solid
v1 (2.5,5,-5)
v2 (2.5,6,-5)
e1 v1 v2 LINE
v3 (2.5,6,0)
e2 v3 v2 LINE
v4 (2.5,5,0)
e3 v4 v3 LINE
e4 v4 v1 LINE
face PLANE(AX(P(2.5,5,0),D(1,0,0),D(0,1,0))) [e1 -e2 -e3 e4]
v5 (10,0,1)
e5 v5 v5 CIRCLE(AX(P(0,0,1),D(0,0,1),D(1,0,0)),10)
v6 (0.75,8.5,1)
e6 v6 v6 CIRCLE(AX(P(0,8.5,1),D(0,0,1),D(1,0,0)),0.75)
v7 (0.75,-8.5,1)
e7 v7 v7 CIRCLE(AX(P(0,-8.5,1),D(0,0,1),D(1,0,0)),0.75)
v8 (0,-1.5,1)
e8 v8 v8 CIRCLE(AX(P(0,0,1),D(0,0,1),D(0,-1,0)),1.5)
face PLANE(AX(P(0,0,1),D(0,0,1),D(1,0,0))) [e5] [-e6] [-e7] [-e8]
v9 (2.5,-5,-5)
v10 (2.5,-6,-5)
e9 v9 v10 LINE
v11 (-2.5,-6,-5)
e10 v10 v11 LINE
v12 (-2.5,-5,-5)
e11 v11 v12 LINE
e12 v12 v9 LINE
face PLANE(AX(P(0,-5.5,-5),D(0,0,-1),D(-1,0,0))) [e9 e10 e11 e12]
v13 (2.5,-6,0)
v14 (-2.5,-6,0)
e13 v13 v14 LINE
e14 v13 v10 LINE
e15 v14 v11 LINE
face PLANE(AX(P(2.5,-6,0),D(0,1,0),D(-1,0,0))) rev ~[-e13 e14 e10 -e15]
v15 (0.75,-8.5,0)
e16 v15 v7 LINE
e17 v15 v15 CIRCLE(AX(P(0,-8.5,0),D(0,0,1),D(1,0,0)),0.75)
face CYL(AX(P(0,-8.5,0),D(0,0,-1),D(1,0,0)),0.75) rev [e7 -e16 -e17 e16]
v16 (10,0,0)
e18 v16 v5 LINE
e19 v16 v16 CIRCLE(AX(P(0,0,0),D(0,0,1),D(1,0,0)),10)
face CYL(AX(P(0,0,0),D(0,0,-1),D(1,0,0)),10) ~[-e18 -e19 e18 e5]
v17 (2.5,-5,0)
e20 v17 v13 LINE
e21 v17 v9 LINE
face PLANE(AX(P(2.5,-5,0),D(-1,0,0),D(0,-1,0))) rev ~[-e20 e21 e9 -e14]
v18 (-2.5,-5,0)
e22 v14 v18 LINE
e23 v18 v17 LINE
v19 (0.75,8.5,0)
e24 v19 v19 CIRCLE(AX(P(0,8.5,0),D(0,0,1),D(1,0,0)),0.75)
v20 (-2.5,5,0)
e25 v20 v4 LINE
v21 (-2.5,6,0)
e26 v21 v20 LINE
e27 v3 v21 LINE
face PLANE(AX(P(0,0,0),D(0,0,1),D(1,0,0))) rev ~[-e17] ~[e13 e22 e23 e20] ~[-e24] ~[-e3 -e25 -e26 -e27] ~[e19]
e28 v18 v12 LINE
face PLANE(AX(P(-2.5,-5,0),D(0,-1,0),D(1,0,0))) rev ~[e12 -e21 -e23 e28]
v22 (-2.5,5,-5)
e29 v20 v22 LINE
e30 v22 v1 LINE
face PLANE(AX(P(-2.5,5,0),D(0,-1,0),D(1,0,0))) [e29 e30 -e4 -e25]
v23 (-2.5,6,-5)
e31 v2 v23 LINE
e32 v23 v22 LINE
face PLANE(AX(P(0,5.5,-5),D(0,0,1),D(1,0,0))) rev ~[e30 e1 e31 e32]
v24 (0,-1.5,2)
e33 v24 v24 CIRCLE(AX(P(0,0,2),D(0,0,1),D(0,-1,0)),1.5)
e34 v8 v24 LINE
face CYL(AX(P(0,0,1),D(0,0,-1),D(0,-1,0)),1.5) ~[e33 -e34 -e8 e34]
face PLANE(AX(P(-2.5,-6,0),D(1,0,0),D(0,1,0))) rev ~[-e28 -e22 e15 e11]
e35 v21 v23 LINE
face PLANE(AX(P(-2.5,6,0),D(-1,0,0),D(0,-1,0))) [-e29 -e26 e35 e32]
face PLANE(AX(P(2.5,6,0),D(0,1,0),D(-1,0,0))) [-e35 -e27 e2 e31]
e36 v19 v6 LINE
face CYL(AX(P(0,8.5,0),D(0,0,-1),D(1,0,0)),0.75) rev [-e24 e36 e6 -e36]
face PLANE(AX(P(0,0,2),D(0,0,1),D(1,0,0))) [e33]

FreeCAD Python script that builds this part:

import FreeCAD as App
import Part
import Sketcher
from FreeCAD import Vector

doc = App.newDocument("Part")
body = doc.addObject("PartDesign::Body", "Body")

sketch1 = body.newObject("Sketcher::SketchObject", "Sketch")
sketch1.AttachmentSupport = (doc.getObject("XY_Plane"), [""])
sketch1.MapMode = "FlatFace"
sketch1.addGeometry(Part.Circle(Vector(0, 0, 0), Vector(0, 0, 1), 10), False)
sketch1.addGeometry(Part.Circle(Vector(0, -8.5, 0), Vector(0, 0, 1), 0.8), False)
sketch1.addGeometry(Part.Circle(Vector(0, 8.5, 0), Vector(0, 0, 1), 0.8), False)
sketch1.addConstraint(Sketcher.Constraint("Coincident", 0, 3, -1, 1))
sketch1.addConstraint(Sketcher.Constraint("Equal", 1, 2))
sketch1.addConstraint(Sketcher.Constraint("Symmetric", 1, 3, 2, 3, -1, 1))
sketch1.addConstraint(Sketcher.Constraint("PointOnObject", 1, 3, -2))
sketch1.addConstraint(Sketcher.Constraint("Diameter", 0, 20.0))
sketch1.addConstraint(Sketcher.Constraint("Diameter", 1, 1.5))
sketch1.addConstraint(Sketcher.Constraint("DistanceY", 1, 3, 2, 3, 17.0))
pad1 = body.newObject("PartDesign::Pad", "Pad")
pad1.Profile = sketch1
pad1.Length = 1

sketch2 = body.newObject("Sketcher::SketchObject", "Sketch001")
sketch2.AttachmentSupport = (doc.getObject("XY_Plane"), [""])
sketch2.MapMode = "FlatFace"
sketch2.addGeometry(Part.LineSegment(Vector(-2.5, -6, 0), Vector(-2.5, -5, 0)), False)
sketch2.addGeometry(Part.LineSegment(Vector(-2.5, -5, 0), Vector(2.5, -5, 0)), False)
sketch2.addGeometry(Part.LineSegment(Vector(2.5, -5, 0), Vector(2.5, -6, 0)), False)
sketch2.addGeometry(Part.LineSegment(Vector(2.5, -6, 0), Vector(-2.5, -6, 0)), False)
sketch2.addGeometry(Part.LineSegment(Vector(2.5, 5, 0), Vector(-2.5, 5, 0)), False)
sketch2.addGeometry(Part.LineSegment(Vector(-2.5, 5, 0), Vector(-2.5, 6, 0)), False)
sketch2.addGeometry(Part.LineSegment(Vector(-2.5, 6, 0), Vector(2.5, 6, 0)), False)
sketch2.addGeometry(Part.LineSegment(Vector(2.5, 6, 0), Vector(2.5, 5, 0)), False)
sketch2.addConstraint(Sketcher.Constraint("Coincident", 0, 2, 1, 1))
sketch2.addConstraint(Sketcher.Constraint("Coincident", 1, 2, 2, 1))
sketch2.addConstraint(Sketcher.Constraint("Coincident", 2, 2, 3, 1))
sketch2.addConstraint(Sketcher.Constraint("Coincident", 3, 2, 0, 1))
sketch2.addConstraint(Sketcher.Constraint("Coincident", 4, 2, 5, 1))
sketch2.addConstraint(Sketcher.Constraint("Coincident", 5, 2, 6, 1))
sketch2.addConstraint(Sketcher.Constraint("Coincident", 6, 2, 7, 1))
sketch2.addConstraint(Sketcher.Constraint("Coincident", 7, 2, 4, 1))
sketch2.addConstraint(Sketcher.Constraint("Vertical", 0))
sketch2.addConstraint(Sketcher.Constraint("Horizontal", 1))
sketch2.addConstraint(Sketcher.Constraint("Vertical", 2))
sketch2.addConstraint(Sketcher.Constraint("Horizontal", 3))
sketch2.addConstraint(Sketcher.Constraint("Horizontal", 4))
sketch2.addConstraint(Sketcher.Constraint("Vertical", 5))
sketch2.addConstraint(Sketcher.Constraint("Horizontal", 6))
sketch2.addConstraint(Sketcher.Constraint("Vertical", 7))
sketch2.addConstraint(Sketcher.Constraint("Symmetric", 1, 2, 4, 2, -1, 1))
sketch2.addConstraint(Sketcher.Constraint("Symmetric", 3, 2, 6, 2, -1, 1))
sketch2.addConstraint(Sketcher.Constraint("Vertical", 3, 2, 4, 2))
sketch2.addConstraint(Sketcher.Constraint("DistanceX", 1, 1, 1, 2, 5.0))
sketch2.addConstraint(Sketcher.Constraint("DistanceY", 0, 1, 0, 2, 1.0))
sketch2.addConstraint(Sketcher.Constraint("DistanceY", 0, 2, -1, 1, 5.0))
pad2 = body.newObject("PartDesign::Pad", "Pad001")
pad2.Profile = sketch2
pad2.Length = 5
pad2.Reversed = True

sketch3 = body.newObject("Sketcher::SketchObject", "Sketch002")
sketch3.AttachmentSupport = (doc.getObject("XY_Plane"), [""])
sketch3.MapMode = "FlatFace"
sketch3.AttachmentOffset = App.Placement(Vector(0, 0, 1), App.Rotation())
sketch3.addGeometry(Part.Circle(Vector(0, 0, 0), Vector(0, 0, 1), 1.5), False)
sketch3.addConstraint(Sketcher.Constraint("Coincident", 0, 3, -1, 1))
sketch3.addConstraint(Sketcher.Constraint("Diameter", 0, 3.0))
pad3 = body.newObject("PartDesign::Pad", "Pad002")
pad3.Profile = sketch3
pad3.Length = 1

doc.recompute()
